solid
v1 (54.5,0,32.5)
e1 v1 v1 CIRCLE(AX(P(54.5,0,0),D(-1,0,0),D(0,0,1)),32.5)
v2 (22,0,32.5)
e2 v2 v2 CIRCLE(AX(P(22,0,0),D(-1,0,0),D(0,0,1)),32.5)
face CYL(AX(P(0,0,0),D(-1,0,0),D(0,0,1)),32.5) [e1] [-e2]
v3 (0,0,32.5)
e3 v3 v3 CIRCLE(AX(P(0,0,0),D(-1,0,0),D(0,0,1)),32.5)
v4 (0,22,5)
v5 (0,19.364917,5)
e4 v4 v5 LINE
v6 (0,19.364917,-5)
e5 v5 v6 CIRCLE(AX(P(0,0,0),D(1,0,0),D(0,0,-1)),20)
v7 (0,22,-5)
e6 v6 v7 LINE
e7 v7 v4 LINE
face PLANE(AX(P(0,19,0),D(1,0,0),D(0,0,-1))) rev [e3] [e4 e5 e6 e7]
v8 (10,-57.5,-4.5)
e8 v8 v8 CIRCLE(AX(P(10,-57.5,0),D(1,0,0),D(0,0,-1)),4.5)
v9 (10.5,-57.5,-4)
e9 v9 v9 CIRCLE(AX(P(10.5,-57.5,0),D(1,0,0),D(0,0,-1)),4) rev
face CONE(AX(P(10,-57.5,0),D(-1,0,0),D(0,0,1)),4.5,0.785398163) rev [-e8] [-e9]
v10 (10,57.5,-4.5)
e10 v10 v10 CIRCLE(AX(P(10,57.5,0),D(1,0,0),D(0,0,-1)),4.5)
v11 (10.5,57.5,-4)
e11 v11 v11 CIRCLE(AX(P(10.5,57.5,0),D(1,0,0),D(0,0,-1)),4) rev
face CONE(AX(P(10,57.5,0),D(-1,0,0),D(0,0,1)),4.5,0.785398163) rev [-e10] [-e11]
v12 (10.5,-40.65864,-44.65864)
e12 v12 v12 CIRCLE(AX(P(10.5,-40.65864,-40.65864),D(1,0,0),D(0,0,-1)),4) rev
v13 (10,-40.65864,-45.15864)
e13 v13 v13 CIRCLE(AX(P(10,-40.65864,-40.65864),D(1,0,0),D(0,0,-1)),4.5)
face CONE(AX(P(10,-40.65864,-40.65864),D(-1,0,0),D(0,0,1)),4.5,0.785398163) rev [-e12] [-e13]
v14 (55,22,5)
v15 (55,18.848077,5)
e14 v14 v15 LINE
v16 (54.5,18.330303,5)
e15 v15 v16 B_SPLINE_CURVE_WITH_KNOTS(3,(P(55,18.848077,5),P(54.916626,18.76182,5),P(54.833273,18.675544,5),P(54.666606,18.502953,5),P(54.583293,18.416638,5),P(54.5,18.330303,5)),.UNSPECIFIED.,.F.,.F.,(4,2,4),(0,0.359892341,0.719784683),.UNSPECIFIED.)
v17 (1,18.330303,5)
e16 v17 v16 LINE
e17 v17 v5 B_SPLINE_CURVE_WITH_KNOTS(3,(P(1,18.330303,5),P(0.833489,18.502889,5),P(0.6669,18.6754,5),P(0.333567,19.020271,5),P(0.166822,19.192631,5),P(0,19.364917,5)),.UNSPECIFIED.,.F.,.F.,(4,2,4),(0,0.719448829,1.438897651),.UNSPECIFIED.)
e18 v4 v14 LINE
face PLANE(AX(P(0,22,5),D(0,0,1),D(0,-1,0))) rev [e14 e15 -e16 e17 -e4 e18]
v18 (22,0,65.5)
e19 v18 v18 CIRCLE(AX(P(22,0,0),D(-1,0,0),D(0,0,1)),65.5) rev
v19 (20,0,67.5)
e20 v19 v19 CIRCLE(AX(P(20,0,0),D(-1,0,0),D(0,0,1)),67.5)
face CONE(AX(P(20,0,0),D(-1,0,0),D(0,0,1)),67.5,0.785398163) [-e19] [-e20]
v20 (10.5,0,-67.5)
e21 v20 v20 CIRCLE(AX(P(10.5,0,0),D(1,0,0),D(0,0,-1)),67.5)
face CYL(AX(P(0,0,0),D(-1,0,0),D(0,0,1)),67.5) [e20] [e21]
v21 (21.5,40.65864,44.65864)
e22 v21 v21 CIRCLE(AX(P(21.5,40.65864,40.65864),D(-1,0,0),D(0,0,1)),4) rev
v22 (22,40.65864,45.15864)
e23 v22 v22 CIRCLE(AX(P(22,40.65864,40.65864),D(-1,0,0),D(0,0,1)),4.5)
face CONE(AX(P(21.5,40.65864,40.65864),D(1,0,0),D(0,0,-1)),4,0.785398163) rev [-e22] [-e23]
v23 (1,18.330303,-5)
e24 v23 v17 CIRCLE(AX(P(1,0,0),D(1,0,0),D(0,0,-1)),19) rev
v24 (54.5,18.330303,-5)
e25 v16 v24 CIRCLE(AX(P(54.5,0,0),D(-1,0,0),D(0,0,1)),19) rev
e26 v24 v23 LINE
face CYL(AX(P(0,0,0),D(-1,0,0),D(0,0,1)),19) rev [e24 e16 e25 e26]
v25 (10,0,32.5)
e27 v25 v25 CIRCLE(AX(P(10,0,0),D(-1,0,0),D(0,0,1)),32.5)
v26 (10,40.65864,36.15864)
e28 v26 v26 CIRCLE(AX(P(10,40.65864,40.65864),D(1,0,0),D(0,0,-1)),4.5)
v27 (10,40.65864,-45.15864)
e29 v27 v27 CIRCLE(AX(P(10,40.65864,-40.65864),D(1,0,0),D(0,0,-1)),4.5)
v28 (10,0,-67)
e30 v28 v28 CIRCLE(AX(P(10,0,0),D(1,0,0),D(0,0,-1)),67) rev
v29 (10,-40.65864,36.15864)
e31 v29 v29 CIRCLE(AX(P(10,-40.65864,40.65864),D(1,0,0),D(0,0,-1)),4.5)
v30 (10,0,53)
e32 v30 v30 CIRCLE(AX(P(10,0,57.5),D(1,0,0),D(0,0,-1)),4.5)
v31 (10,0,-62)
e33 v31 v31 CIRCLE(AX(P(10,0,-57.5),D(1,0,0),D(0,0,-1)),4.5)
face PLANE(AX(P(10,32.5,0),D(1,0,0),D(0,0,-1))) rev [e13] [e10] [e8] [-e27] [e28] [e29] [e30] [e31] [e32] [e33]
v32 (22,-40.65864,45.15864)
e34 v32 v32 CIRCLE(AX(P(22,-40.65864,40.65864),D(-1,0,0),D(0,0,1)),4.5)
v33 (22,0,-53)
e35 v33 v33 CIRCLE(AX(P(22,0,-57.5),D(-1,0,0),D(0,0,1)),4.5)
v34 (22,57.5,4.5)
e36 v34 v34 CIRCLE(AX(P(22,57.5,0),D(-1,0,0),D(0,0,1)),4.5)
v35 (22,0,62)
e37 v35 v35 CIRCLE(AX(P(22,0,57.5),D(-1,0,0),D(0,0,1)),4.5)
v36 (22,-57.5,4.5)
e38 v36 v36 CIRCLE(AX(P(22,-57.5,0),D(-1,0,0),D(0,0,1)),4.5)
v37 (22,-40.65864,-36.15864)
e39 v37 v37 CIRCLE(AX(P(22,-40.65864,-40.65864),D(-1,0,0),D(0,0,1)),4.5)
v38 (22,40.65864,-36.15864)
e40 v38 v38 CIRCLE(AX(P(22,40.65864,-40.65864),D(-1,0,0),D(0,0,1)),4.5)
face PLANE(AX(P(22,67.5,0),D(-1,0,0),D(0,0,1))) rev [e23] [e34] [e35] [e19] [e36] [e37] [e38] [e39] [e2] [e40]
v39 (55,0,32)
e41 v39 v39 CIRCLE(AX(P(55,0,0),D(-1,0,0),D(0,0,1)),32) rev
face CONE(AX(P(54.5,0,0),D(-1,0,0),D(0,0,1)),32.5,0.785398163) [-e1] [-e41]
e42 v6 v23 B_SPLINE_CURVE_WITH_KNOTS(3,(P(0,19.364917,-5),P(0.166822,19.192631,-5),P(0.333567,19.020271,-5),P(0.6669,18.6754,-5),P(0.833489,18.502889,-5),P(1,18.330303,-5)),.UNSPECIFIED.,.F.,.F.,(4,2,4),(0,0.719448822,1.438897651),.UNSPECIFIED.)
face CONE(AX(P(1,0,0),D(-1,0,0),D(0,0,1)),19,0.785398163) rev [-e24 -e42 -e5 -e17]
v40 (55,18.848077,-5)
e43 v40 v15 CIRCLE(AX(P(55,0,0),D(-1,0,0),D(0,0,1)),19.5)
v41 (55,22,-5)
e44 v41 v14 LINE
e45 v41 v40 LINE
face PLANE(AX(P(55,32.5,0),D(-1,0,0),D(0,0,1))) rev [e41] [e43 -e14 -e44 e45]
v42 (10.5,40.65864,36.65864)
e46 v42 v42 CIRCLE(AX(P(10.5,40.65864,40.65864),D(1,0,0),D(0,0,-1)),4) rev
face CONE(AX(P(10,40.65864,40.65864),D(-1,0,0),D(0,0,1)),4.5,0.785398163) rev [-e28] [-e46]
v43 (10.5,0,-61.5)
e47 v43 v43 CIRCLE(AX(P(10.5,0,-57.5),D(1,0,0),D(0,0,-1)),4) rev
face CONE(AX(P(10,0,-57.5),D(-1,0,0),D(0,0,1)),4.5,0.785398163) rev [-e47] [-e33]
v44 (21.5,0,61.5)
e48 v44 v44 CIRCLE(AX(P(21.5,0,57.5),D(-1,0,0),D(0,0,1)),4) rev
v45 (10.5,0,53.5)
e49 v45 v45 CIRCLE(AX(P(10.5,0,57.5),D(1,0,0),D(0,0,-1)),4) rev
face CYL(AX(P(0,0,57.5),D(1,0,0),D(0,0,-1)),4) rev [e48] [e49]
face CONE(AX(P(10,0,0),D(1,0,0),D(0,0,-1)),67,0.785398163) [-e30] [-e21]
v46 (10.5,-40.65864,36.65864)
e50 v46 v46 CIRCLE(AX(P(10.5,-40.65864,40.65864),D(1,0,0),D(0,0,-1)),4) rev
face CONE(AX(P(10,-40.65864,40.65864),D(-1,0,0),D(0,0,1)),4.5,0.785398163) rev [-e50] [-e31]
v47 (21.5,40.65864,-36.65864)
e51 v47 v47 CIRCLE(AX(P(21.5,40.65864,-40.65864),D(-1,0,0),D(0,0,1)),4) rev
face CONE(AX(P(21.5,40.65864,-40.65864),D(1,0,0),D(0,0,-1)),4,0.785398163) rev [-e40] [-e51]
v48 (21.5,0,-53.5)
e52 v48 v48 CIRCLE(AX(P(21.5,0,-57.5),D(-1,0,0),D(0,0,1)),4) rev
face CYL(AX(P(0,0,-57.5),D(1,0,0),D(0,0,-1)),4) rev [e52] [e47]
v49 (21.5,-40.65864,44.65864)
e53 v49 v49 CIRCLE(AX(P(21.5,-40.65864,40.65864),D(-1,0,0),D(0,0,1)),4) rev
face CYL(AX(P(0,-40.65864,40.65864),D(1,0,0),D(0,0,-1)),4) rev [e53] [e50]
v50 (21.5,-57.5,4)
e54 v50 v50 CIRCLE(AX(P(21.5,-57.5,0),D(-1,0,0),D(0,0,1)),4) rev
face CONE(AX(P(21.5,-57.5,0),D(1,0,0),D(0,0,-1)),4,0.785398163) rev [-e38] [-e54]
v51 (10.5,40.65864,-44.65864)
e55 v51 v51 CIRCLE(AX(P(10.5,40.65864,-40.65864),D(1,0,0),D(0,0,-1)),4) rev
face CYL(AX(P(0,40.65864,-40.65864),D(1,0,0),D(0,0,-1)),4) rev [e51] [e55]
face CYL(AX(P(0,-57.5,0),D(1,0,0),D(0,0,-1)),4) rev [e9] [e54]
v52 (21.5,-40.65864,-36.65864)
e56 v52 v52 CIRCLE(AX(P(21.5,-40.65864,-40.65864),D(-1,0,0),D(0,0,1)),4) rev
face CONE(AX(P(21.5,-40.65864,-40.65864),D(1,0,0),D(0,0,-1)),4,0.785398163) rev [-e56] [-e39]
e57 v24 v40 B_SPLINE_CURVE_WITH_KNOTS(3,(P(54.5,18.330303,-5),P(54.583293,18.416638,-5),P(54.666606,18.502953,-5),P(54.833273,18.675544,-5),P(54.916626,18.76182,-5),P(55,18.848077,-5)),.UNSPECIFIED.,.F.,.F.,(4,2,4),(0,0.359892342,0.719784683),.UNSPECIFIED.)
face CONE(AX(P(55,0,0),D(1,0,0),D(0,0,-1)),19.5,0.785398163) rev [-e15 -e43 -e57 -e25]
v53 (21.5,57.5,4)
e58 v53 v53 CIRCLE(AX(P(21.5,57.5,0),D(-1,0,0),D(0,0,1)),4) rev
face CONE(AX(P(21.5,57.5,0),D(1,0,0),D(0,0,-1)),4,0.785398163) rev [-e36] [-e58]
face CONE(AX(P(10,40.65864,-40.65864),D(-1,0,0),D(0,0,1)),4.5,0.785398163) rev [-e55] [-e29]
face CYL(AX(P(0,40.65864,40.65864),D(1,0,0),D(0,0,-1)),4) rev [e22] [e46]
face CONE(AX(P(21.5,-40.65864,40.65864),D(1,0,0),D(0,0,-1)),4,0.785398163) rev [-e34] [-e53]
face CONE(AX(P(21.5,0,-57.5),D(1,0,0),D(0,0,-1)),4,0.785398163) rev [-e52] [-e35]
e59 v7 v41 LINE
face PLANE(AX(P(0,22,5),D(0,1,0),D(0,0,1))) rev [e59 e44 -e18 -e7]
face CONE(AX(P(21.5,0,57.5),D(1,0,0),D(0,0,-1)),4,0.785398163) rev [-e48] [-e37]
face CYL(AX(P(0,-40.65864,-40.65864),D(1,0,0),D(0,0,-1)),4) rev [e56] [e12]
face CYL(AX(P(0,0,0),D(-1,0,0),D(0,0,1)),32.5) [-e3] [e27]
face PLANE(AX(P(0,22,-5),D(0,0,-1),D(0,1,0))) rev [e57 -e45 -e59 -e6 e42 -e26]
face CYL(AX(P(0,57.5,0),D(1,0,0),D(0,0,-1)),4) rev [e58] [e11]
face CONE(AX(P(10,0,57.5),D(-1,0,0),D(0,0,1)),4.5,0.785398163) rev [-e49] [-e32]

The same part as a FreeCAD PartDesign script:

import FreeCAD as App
import Part
import Sketcher
Q = App.Units.Quantity


def edges_at(feature, points):
    """Names of the edges that pass closest to the given points."""
    edges = feature.Shape.Edges
    near = lambda p: min(range(len(edges)), key=lambda i: edges[i].distToShape(Part.Vertex(*p))[0])
    return sorted({f"Edge{near(p) + 1}" for p in points})

doc = App.newDocument("Part")
body = doc.addObject("PartDesign::Body", "Body")

# Sketch on XY plane
sketch1 = body.newObject("Sketcher::SketchObject", "Sketch")
sketch1.AttachmentSupport = (doc.getObject("XY_Plane"), [""])
sketch1.MapMode = "FlatFace"
sketch1.addGeometry([
    Part.LineSegment(App.Vector(0, 32, 0), App.Vector(0, 19, 0)),  # 0
    Part.LineSegment(App.Vector(0, 19, 0), App.Vector(55, 19, 0)),  # 1
    Part.LineSegment(App.Vector(55, 19, 0), App.Vector(55, 32, 0)),  # 2
    Part.LineSegment(App.Vector(55, 32, 0), App.Vector(22, 32, 0)),  # 3
    Part.LineSegment(App.Vector(22, 32, 0), App.Vector(22, 68, 0)),  # 4
    Part.LineSegment(App.Vector(22, 68, 0), App.Vector(10, 68, 0)),  # 5
    Part.LineSegment(App.Vector(10, 68, 0), App.Vector(10, 32, 0)),  # 6
    Part.LineSegment(App.Vector(10, 32, 0), App.Vector(0, 32, 0)),  # 7
], False)
sketch1.addConstraint([
    Sketcher.Constraint("Coincident", 0, 2, 1, 1),
    Sketcher.Constraint("Coincident", 1, 2, 2, 1),
    Sketcher.Constraint("Coincident", 2, 2, 3, 1),
    Sketcher.Constraint("Coincident", 3, 2, 4, 1),
    Sketcher.Constraint("Coincident", 4, 2, 5, 1),
    Sketcher.Constraint("Coincident", 5, 2, 6, 1),
    Sketcher.Constraint("Coincident", 6, 2, 7, 1),
    Sketcher.Constraint("Coincident", 7, 2, 0, 1),
    Sketcher.Constraint("Vertical", 0),
    Sketcher.Constraint("Horizontal", 1),
    Sketcher.Constraint("Vertical", 2),
    Sketcher.Constraint("Horizontal", 3),
    Sketcher.Constraint("Vertical", 4),
    Sketcher.Constraint("Horizontal", 5),
    Sketcher.Constraint("Vertical", 6),
    Sketcher.Constraint("Horizontal", 7),
    Sketcher.Constraint("PointOnObject", 0, 2, -2),
    Sketcher.Constraint("Horizontal", 3, 2, 6, 2),
    Sketcher.Constraint("DistanceX", 1, 1, 1, 2, Q("55 mm")),
    Sketcher.Constraint("DistanceX", 3, 2, 3, 1, Q("33 mm")),
    Sketcher.Constraint("DistanceX", 5, 2, 5, 1, Q("12 mm")),
    Sketcher.Constraint("DistanceY", 4, 1, 4, 2, Q("35 mm")),
    Sketcher.Constraint("DistanceY", 0, 2, 0, 1, Q("13.5 mm")),
    Sketcher.Constraint("DistanceY", -1, 1, 0, 2, Q("19 mm")),
])
revolution = body.newObject("PartDesign::Revolution", "Revolution")
revolution.Profile = sketch1
revolution.ReferenceAxis = (sketch1, ["H_Axis"])
revolution.Angle = 360

# Sketch on YZ plane
sketch2 = body.newObject("Sketcher::SketchObject", "Sketch001")
sketch2.AttachmentSupport = (doc.getObject("YZ_Plane"), [""])
sketch2.MapMode = "FlatFace"
sketch2.AttachmentOffset = App.Placement(App.Vector(0, 0, 55), App.Rotation())
sketch2.addGeometry([
    Part.LineSegment(App.Vector(22, 5, 0), App.Vector(0, 5, 0)),
    Part.LineSegment(App.Vector(0, 5, 0), App.Vector(0, -5, 0)),
    Part.LineSegment(App.Vector(0, -5, 0), App.Vector(22, -5, 0)),
    Part.LineSegment(App.Vector(22, -5, 0), App.Vector(22, 5, 0)),
], False)
sketch2.addConstraint([
    Sketcher.Constraint("Coincident", 0, 2, 1, 1),
    Sketcher.Constraint("Coincident", 1, 2, 2, 1),
    Sketcher.Constraint("Coincident", 2, 2, 3, 1),
    Sketcher.Constraint("Coincident", 3, 2, 0, 1),
    Sketcher.Constraint("Horizontal", 0),
    Sketcher.Constraint("Vertical", 1),
    Sketcher.Constraint("Horizontal", 2),
    Sketcher.Constraint("Vertical", 3),
    Sketcher.Constraint("Symmetric", 0, 2, 1, 2, -1, 1),
    Sketcher.Constraint("DistanceX", 0, 2, 0, 1, Q("22 mm")),
    Sketcher.Constraint("DistanceY", 1, 2, 1, 1, Q("10 mm")),
])
pocket1 = body.newObject("PartDesign::Pocket", "Pocket")
pocket1.Profile = sketch2
pocket1.Type = "ThroughAll"

# Sketch on YZ plane
sketch3 = body.newObject("Sketcher::SketchObject", "Sketch002")
sketch3.AttachmentSupport = (doc.getObject("YZ_Plane"), [""])
sketch3.MapMode = "FlatFace"
sketch3.AttachmentOffset = App.Placement(App.Vector(0, 0, 22), App.Rotation())
sketch3.addGeometry([
    Part.Circle(App.Vector(57.5, 0, 0), App.Vector(0, 0, 1), 4),  # 0
    Part.Circle(App.Vector(40.7, -40.7, 0), App.Vector(0, 0, 1), 4),  # 1
    Part.Circle(App.Vector(0, -57.5, 0), App.Vector(0, 0, 1), 4),  # 2
    Part.Circle(App.Vector(-40.7, -40.7, 0), App.Vector(0, 0, 1), 4),  # 3
    Part.Circle(App.Vector(-57.5, 0, 0), App.Vector(0, 0, 1), 4),  # 4
    Part.Circle(App.Vector(-40.7, 40.7, 0), App.Vector(0, 0, 1), 4),  # 5
    Part.Circle(App.Vector(0, 57.5, 0), App.Vector(0, 0, 1), 4),  # 6
    Part.Circle(App.Vector(40.7, 40.7, 0), App.Vector(0, 0, 1), 4),  # 7
], False)
sketch3.addConstraint([
    Sketcher.Constraint("Equal", 0, 1),
    Sketcher.Constraint("Equal", 1, 2),
    Sketcher.Constraint("Equal", 2, 3),
    Sketcher.Constraint("Equal", 3, 4),
    Sketcher.Constraint("Equal", 4, 5),
    Sketcher.Constraint("Equal", 5, 6),
    Sketcher.Constraint("Equal", 6, 7),
    Sketcher.Constraint("Symmetric", 0, 3, 4, 3, -1, 1),
    Sketcher.Constraint("Symmetric", 1, 3, 5, 3, -1, 1),
    Sketcher.Constraint("Symmetric", 2, 3, 6, 3, -1, 1),
    Sketcher.Constraint("Symmetric", 3, 3, 7, 3, -1, 1),
    Sketcher.Constraint("Symmetric", 1, 3, 3, 3, -2),
    Sketcher.Constraint("PointOnObject", 0, 3, -1),
    Sketcher.Constraint("PointOnObject", 2, 3, -2),
    Sketcher.Constraint("Diameter", 0, Q("8 mm")),
    Sketcher.Constraint("DistanceX", 4, 3, 0, 3, Q("115 mm")),
    Sketcher.Constraint("DistanceY", 2, 3, -1, 1, Q("57.5 mm")),
    Sketcher.Constraint("DistanceX", -1, 1, 1, 3, Q("40.65864 mm")),
    Sketcher.Constraint("DistanceY", 1, 3, -1, 1, Q("40.65864 mm")),
])
pocket2 = body.newObject("PartDesign::Pocket", "Pocket001")
pocket2.Profile = sketch3
pocket2.Type = "ThroughAll"
doc.recompute()

chamfer = body.newObject("PartDesign::Chamfer", "Chamfer")
chamfer.Base = (pocket2, edges_at(pocket2, [(22, 0, -67.5)]))
chamfer.Size = 2
doc.recompute()

chamfer2 = body.newObject("PartDesign::Chamfer", "Chamfer001")
chamfer2.Base = (chamfer, edges_at(chamfer, [(0, -19, 0)]))
chamfer2.Size = 1
doc.recompute()

chamfer3 = body.newObject("PartDesign::Chamfer", "Chamfer002")
chamfer3.Base = (chamfer2, edges_at(chamfer2, [
    (55, -19, 0),
    (10, 57.5, 4),
    (22, 57.5, 4),
    (10, 40.659, -36.659),
    (22, 40.659, -36.659),
    (10, 0, -53.5),
    (22, 0, -53.5),
    (10, -40.659, -36.659),
    (22, -40.659, -36.659),
    (10, -57.5, 4),
    (22, -57.5, 4),
    (10, -40.659, 44.659),
    (22, -40.659, 44.659),
    (10, 0, 61.5),
    (22, 0, 61.5),
    (10, 40.659, 44.659),
    (22, 40.659, 44.659),
    (55, 0, -32.5),
    (10, 0, -67.5),
]))
chamfer3.Size = 0.5

doc.recompute()
